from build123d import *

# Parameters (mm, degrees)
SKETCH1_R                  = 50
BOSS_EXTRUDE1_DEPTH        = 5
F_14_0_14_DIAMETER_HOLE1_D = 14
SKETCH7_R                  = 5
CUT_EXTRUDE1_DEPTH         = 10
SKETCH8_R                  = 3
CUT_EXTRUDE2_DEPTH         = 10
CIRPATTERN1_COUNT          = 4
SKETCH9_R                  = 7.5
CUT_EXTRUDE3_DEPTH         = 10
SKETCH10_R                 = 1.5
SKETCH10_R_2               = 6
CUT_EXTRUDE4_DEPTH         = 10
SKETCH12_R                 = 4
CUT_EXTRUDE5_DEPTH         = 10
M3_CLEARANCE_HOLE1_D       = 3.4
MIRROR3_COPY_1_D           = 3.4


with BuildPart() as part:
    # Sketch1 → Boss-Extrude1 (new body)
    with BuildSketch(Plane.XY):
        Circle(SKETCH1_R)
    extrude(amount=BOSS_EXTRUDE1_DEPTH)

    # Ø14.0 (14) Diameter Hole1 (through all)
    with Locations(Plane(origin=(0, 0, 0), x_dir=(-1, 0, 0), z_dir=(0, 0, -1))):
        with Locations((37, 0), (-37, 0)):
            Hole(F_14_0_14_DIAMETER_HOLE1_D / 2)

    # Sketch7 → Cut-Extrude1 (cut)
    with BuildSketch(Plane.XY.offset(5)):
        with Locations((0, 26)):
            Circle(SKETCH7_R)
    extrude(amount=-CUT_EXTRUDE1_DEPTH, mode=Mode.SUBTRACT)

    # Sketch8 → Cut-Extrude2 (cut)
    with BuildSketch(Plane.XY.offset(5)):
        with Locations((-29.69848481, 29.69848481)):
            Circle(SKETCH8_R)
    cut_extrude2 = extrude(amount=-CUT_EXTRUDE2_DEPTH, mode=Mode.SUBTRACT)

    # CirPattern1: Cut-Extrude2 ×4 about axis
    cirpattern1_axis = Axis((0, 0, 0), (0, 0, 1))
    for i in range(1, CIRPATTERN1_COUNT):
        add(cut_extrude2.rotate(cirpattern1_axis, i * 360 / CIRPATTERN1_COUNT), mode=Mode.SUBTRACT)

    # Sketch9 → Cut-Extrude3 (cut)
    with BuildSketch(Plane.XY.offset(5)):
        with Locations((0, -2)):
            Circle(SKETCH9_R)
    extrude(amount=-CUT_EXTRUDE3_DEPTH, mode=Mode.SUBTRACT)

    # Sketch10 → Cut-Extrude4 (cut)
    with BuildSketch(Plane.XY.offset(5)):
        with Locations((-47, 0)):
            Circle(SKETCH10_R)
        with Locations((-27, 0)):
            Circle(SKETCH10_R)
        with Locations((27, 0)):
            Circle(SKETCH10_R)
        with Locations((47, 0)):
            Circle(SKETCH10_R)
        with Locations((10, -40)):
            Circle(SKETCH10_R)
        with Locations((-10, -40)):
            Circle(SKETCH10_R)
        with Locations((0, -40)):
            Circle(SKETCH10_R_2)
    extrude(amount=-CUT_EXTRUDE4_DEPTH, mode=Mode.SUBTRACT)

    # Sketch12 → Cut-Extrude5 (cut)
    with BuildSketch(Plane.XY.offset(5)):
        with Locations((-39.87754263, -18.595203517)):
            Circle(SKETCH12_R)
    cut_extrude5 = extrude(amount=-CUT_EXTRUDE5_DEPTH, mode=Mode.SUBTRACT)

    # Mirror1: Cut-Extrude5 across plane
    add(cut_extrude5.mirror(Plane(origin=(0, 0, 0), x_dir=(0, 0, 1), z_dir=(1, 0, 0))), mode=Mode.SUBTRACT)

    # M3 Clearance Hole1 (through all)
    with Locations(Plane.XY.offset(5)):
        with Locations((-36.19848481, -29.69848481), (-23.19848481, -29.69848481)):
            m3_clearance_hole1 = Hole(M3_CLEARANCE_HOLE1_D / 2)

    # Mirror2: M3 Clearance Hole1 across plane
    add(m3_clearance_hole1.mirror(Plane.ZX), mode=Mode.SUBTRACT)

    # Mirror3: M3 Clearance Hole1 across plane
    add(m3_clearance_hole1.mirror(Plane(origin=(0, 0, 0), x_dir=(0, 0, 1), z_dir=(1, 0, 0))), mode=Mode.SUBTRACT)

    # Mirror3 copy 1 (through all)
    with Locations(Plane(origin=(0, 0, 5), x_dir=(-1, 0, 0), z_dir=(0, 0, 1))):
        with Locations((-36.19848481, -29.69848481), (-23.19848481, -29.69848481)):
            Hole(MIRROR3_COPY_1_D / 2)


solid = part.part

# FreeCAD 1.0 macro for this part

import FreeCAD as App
import Part
import Sketcher
Q = App.Units.Quantity

doc = App.newDocument("Part")
body = doc.addObject("PartDesign::Body", "Body")

sketch1 = doc.addObject("Sketcher::SketchObject", "Sketch")
body.addObject(sketch1)
sketch1.AttachmentSupport = (doc.XY_Plane, [""])
sketch1.MapMode = "FlatFace"
sketch1.addGeometry(Part.Circle(App.Vector(0, 0, 0), App.Vector(0, 0, 1), 50), False)
sketch1.addConstraint([
    Sketcher.Constraint("Coincident", 0, 3, -1, 1),
    Sketcher.Constraint("Diameter", 0, Q("100 mm")),
])
pad1 = doc.addObject("PartDesign::Pad", "Pad")
body.addObject(pad1)
pad1.Profile = sketch1
pad1.Length = 5

sketch2 = doc.addObject("Sketcher::SketchObject", "Sketch001")
body.addObject(sketch2)
sketch2.AttachmentSupport = (doc.XY_Plane, [""])
sketch2.MapMode = "FlatFace"
sketch2.addGeometry([
    Part.Circle(App.Vector(-37, 0, 0), App.Vector(0, 0, 1), 7),
    Part.Circle(App.Vector(37, 0, 0), App.Vector(0, 0, 1), 7),
], False)
sketch2.addConstraint([
    Sketcher.Constraint("Equal", 0, 1),
    Sketcher.Constraint("Symmetric", 0, 3, 1, 3, -1, 1),
    Sketcher.Constraint("PointOnObject", 0, 3, -1),
    Sketcher.Constraint("Diameter", 0, Q("14 mm")),
    Sketcher.Constraint("DistanceX", 0, 3, -1, 1, Q("37 mm")),
])
doc.recompute()
hole = doc.addObject("PartDesign::Hole", "Hole")
body.addObject(hole)
hole.Profile = sketch2
hole.ThreadType = "None"
hole.Diameter = 14
hole.DepthType = "ThroughAll"
hole.Reversed = True

sketch3 = doc.addObject("Sketcher::SketchObject", "Sketch002")
body.addObject(sketch3)
sketch3.AttachmentSupport = (doc.XY_Plane, [""])
sketch3.MapMode = "FlatFace"
sketch3.AttachmentOffset = App.Placement(App.Vector(0, 0, 5), App.Rotation())
sketch3.addGeometry(Part.Circle(App.Vector(0, 26, 0), App.Vector(0, 0, 1), 5), False)
sketch3.addConstraint([
    Sketcher.Constraint("PointOnObject", 0, 3, -2),
    Sketcher.Constraint("Diameter", 0, Q("10 mm")),
    Sketcher.Constraint("DistanceY", -1, 1, 0, 3, Q("26 mm")),
])
pocket1 = doc.addObject("PartDesign::Pocket", "Pocket")
body.addObject(pocket1)
pocket1.Profile = sketch3
pocket1.Length = 10

sketch4 = doc.addObject("Sketcher::SketchObject", "Sketch003")
body.addObject(sketch4)
sketch4.AttachmentSupport = (doc.XY_Plane, [""])
sketch4.MapMode = "FlatFace"
sketch4.AttachmentOffset = App.Placement(App.Vector(0, 0, 5), App.Rotation())
sketch4.addGeometry(Part.Circle(App.Vector(-29.698485, 29.698485, 0), App.Vector(0, 0, 1), 3), False)
sketch4.addConstraint([
    Sketcher.Constraint("Diameter", 0, Q("6 mm")),
    Sketcher.Constraint("DistanceX", 0, 3, -1, 1, Q("29.698485 mm")),
    Sketcher.Constraint("DistanceY", -1, 1, 0, 3, Q("29.698485 mm")),
])
pocket2 = doc.addObject("PartDesign::Pocket", "Pocket001")
body.addObject(pocket2)
pocket2.Profile = sketch4
pocket2.Length = 10
doc.recompute()

polarpattern = doc.addObject("PartDesign::PolarPattern", "PolarPattern")
body.addObject(polarpattern)
polarpattern.Originals = [pocket2]
polarpattern.Axis = (doc.Z_Axis, [""])
polarpattern.Angle = 360
polarpattern.Occurrences = 4
body.Tip = polarpattern

sketch5 = doc.addObject("Sketcher::SketchObject", "Sketch004")
body.addObject(sketch5)
sketch5.AttachmentSupport = (doc.XY_Plane, [""])
sketch5.MapMode = "FlatFace"
sketch5.AttachmentOffset = App.Placement(App.Vector(0, 0, 5), App.Rotation())
sketch5.addGeometry(Part.Circle(App.Vector(0, -2, 0), App.Vector(0, 0, 1), 7.5), False)
sketch5.addConstraint([
    Sketcher.Constraint("PointOnObject", 0, 3, -2),
    Sketcher.Constraint("Diameter", 0, Q("15 mm")),
    Sketcher.Constraint("DistanceY", 0, 3, -1, 1, Q("2 mm")),
])
pocket3 = doc.addObject("PartDesign::Pocket", "Pocket002")
body.addObject(pocket3)
pocket3.Profile = sketch5
pocket3.Length = 10

sketch6 = doc.addObject("Sketcher::SketchObject", "Sketch005")
body.addObject(sketch6)
sketch6.AttachmentSupport = (doc.XY_Plane, [""])
sketch6.MapMode = "FlatFace"
sketch6.AttachmentOffset = App.Placement(App.Vector(0, 0, 5), App.Rotation())
sketch6.addGeometry([
    Part.Circle(App.Vector(-47, 0, 0), App.Vector(0, 0, 1), 1.5),
    Part.Circle(App.Vector(-27, 0, 0), App.Vector(0, 0, 1), 1.5),
    Part.Circle(App.Vector(27, 0, 0), App.Vector(0, 0, 1), 1.5),
    Part.Circle(App.Vector(47, 0, 0), App.Vector(0, 0, 1), 1.5),
    Part.Circle(App.Vector(10, -40, 0), App.Vector(0, 0, 1), 1.5),
    Part.Circle(App.Vector(-10, -40, 0), App.Vector(0, 0, 1), 1.5),
    Part.Circle(App.Vector(0, -40, 0), App.Vector(0, 0, 1), 6),
], False)
sketch6.addConstraint([
    Sketcher.Constraint("Equal", 0, 1),
    Sketcher.Constraint("Equal", 1, 2),
    Sketcher.Constraint("Equal", 2, 3),
    Sketcher.Constraint("Equal", 3, 4),
    Sketcher.Constraint("Equal", 4, 5),
    Sketcher.Constraint("Symmetric", 1, 3, 2, 3, -1, 1),
    Sketcher.Constraint("Symmetric", 0, 3, 3, 3, -1, 1),
    Sketcher.Constraint("Symmetric", 4, 3, 5, 3, -2),
    Sketcher.Constraint("PointOnObject", 0, 3, -1),
    Sketcher.Constraint("PointOnObject", 1, 3, -1),
    Sketcher.Constraint("PointOnObject", 6, 3, -2),
    Sketcher.Constraint("Horizontal", 5, 3, 6, 3),
    Sketcher.Constraint("Diameter", 0, Q("3 mm")),
    Sketcher.Constraint("Diameter", 6, Q("12 mm")),
    Sketcher.Constraint("DistanceX", 0, 3, -1, 1, Q("47 mm")),
    Sketcher.Constraint("DistanceX", 1, 3, -1, 1, Q("27 mm")),
    Sketcher.Constraint("DistanceX", -1, 1, 4, 3, Q("10 mm")),
    Sketcher.Constraint("DistanceY", 4, 3, -1, 1, Q("40 mm")),
])
pocket4 = doc.addObject("PartDesign::Pocket", "Pocket003")
body.addObject(pocket4)
pocket4.Profile = sketch6
pocket4.Length = 10

sketch7 = doc.addObject("Sketcher::SketchObject", "Sketch006")
body.addObject(sketch7)
sketch7.AttachmentSupport = (doc.XY_Plane, [""])
sketch7.MapMode = "FlatFace"
sketch7.AttachmentOffset = App.Placement(App.Vector(0, 0, 5), App.Rotation())
sketch7.addGeometry(Part.Circle(App.Vector(-39.877543, -18.595204, 0), App.Vector(0, 0, 1), 4), False)
sketch7.addConstraint([
    Sketcher.Constraint("Diameter", 0, Q("8 mm")),
    Sketcher.Constraint("DistanceX", 0, 3, -1, 1, Q("39.877543 mm")),
    Sketcher.Constraint("DistanceY", 0, 3, -1, 1, Q("18.595204 mm")),
])
pocket5 = doc.addObject("PartDesign::Pocket", "Pocket004")
body.addObject(pocket5)
pocket5.Profile = sketch7
pocket5.Length = 10
doc.recompute()

mirrored = doc.addObject("PartDesign::Mirrored", "Mirrored")
body.addObject(mirrored)
mirrored.Originals = [pocket5]
mirrored.MirrorPlane = (doc.YZ_Plane, [""])
body.Tip = mirrored

sketch8 = doc.addObject("Sketcher::SketchObject", "Sketch007")
body.addObject(sketch8)
sketch8.AttachmentSupport = (doc.XY_Plane, [""])
sketch8.MapMode = "FlatFace"
sketch8.AttachmentOffset = App.Placement(App.Vector(0, 0, 5), App.Rotation())
sketch8.addGeometry([
    Part.Circle(App.Vector(-36.198485, -29.698485, 0), App.Vector(0, 0, 1), 1.7),
    Part.Circle(App.Vector(-23.198485, -29.698485, 0), App.Vector(0, 0, 1), 1.7),
], False)
sketch8.addConstraint([
    Sketcher.Constraint("Equal", 0, 1),
    Sketcher.Constraint("Horizontal", 0, 3, 1, 3),
    Sketcher.Constraint("Diameter", 0, Q("3.4 mm")),
    Sketcher.Constraint("DistanceX", 0, 3, 1, 3, Q("13 mm")),
    Sketcher.Constraint("DistanceX", 0, 3, -1, 1, Q("36.198485 mm")),
    Sketcher.Constraint("DistanceY", 0, 3, -1, 1, Q("29.698485 mm")),
])
doc.recompute()
hole2 = doc.addObject("PartDesign::Hole", "Hole001")
body.addObject(hole2)
hole2.Profile = sketch8
hole2.ThreadType = "None"
hole2.Diameter = 3.4
hole2.DepthType = "ThroughAll"
doc.recompute()

mirrored2 = doc.addObject("PartDesign::Mirrored", "Mirrored001")
body.addObject(mirrored2)
mirrored2.Originals = [hole2]
mirrored2.MirrorPlane = (doc.XZ_Plane, [""])
body.Tip = mirrored2
doc.recompute()

mirrored3 = doc.addObject("PartDesign::Mirrored", "Mirrored002")
body.addObject(mirrored3)
mirrored3.Originals = [hole2]
mirrored3.MirrorPlane = (doc.YZ_Plane, [""])
body.Tip = mirrored3

sketch9 = doc.addObject("Sketcher::SketchObject", "Sketch008")
body.addObject(sketch9)
sketch9.AttachmentSupport = (doc.XY_Plane, [""])
sketch9.MapMode = "FlatFace"
sketch9.AttachmentOffset = App.Placement(App.Vector(0, 0, 5), App.Rotation())
sketch9.addGeometry([
    Part.Circle(App.Vector(36.198485, 29.698485, 0), App.Vector(0, 0, 1), 1.7),
    Part.Circle(App.Vector(23.198485, 29.698485, 0), App.Vector(0, 0, 1), 1.7),
], False)
sketch9.addConstraint([
    Sketcher.Constraint("Equal", 0, 1),
    Sketcher.Constraint("Horizontal", 0, 3, 1, 3),
    Sketcher.Constraint("Diameter", 0, Q("3.4 mm")),
    Sketcher.Constraint("DistanceX", 1, 3, 0, 3, Q("13 mm")),
    Sketcher.Constraint("DistanceX", -1, 1, 0, 3, Q("36.198485 mm")),
    Sketcher.Constraint("DistanceY", -1, 1, 0, 3, Q("29.698485 mm")),
])
doc.recompute()
hole3 = doc.addObject("PartDesign::Hole", "Hole002")
body.addObject(hole3)
hole3.Profile = sketch9
hole3.ThreadType = "None"
hole3.Diameter = 3.4
hole3.DepthType = "ThroughAll"

doc.recompute()
